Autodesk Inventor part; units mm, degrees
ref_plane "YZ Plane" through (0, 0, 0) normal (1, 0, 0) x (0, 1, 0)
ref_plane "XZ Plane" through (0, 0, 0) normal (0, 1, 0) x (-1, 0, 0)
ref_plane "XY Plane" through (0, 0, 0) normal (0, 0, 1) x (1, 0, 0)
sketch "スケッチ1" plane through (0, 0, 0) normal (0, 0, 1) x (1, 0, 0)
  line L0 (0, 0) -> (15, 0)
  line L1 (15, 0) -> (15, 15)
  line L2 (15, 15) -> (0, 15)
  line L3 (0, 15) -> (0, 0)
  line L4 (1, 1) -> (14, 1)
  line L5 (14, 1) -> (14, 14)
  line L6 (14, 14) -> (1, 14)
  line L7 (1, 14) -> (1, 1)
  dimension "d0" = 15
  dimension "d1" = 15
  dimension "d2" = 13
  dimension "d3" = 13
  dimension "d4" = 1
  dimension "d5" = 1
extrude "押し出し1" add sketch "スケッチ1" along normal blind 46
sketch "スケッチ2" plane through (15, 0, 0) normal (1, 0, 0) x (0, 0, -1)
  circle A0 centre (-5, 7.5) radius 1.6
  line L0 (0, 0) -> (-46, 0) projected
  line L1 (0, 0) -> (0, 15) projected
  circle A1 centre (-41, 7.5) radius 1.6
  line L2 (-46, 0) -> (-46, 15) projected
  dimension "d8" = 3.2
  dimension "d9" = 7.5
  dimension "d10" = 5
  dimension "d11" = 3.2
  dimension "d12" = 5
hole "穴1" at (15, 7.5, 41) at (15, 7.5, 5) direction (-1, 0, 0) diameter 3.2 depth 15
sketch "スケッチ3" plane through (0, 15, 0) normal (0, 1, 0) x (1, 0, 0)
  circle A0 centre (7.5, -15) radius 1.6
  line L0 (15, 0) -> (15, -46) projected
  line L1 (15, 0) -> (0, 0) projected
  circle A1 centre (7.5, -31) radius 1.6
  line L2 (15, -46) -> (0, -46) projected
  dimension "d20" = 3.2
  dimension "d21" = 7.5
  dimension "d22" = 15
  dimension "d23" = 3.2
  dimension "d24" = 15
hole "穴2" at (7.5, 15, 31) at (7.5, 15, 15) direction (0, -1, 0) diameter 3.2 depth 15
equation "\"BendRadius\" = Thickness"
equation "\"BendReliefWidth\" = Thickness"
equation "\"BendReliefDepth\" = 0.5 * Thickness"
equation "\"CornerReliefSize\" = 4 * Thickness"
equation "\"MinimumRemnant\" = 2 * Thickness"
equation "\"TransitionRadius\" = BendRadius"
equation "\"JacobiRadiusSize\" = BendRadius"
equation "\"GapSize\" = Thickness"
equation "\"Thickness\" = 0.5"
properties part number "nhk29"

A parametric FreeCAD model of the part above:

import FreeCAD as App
import Part
import Sketcher

V = App.Vector

doc = App.newDocument("Part")
body = doc.addObject("PartDesign::Body", "Body")

# Sketch on XY plane
sketch1 = doc.addObject("Sketcher::SketchObject", "Sketch")
body.addObject(sketch1)
sketch1.AttachmentSupport = (doc.XY_Plane, [""])
sketch1.MapMode = "FlatFace"
sketch1.addGeometry(Part.LineSegment(V(0, 15, 0), V(0, 0, 0)), False)
sketch1.addGeometry(Part.LineSegment(V(0, 0, 0), V(15, 0, 0)), False)
sketch1.addGeometry(Part.LineSegment(V(15, 0, 0), V(15, 15, 0)), False)
sketch1.addGeometry(Part.LineSegment(V(15, 15, 0), V(0, 15, 0)), False)
sketch1.addGeometry(Part.LineSegment(V(14, 1, 0), V(1, 1, 0)), False)
sketch1.addGeometry(Part.LineSegment(V(1, 1, 0), V(1, 14, 0)), False)
sketch1.addGeometry(Part.LineSegment(V(1, 14, 0), V(14, 14, 0)), False)
sketch1.addGeometry(Part.LineSegment(V(14, 14, 0), V(14, 1, 0)), False)
sketch1.addConstraint(Sketcher.Constraint("Coincident", 0, 2, 1, 1))
sketch1.addConstraint(Sketcher.Constraint("Coincident", 1, 2, 2, 1))
sketch1.addConstraint(Sketcher.Constraint("Coincident", 2, 2, 3, 1))
sketch1.addConstraint(Sketcher.Constraint("Coincident", 3, 2, 0, 1))
sketch1.addConstraint(Sketcher.Constraint("Coincident", 4, 2, 5, 1))
sketch1.addConstraint(Sketcher.Constraint("Coincident", 5, 2, 6, 1))
sketch1.addConstraint(Sketcher.Constraint("Coincident", 6, 2, 7, 1))
sketch1.addConstraint(Sketcher.Constraint("Coincident", 7, 2, 4, 1))
sketch1.addConstraint(Sketcher.Constraint("Vertical", 0))
sketch1.addConstraint(Sketcher.Constraint("Horizontal", 1))
sketch1.addConstraint(Sketcher.Constraint("Vertical", 2))
sketch1.addConstraint(Sketcher.Constraint("Horizontal", 3))
sketch1.addConstraint(Sketcher.Constraint("Horizontal", 4))
sketch1.addConstraint(Sketcher.Constraint("Vertical", 5))
sketch1.addConstraint(Sketcher.Constraint("Horizontal", 6))
sketch1.addConstraint(Sketcher.Constraint("Vertical", 7))
sketch1.addConstraint(Sketcher.Constraint("Coincident", 0, 2, -1, 1))
sketch1.addConstraint(Sketcher.Constraint("Equal", 3, 0))
sketch1.addConstraint(Sketcher.Constraint("Equal", 6, 5))
sketch1.addConstraint(Sketcher.Constraint("DistanceX", 1, 1, 1, 2, 15.0))
sketch1.addConstraint(Sketcher.Constraint("DistanceX", 4, 2, 4, 1, 13.0))
sketch1.addConstraint(Sketcher.Constraint("DistanceX", -1, 1, 4, 2, 1.0))
sketch1.addConstraint(Sketcher.Constraint("DistanceY", -1, 1, 4, 2, 1.0))
pad1 = doc.addObject("PartDesign::Pad", "Pad")
body.addObject(pad1)
pad1.Profile = sketch1
pad1.Length = 46

# Sketch on YZ plane
sketch2 = doc.addObject("Sketcher::SketchObject", "Sketch001")
body.addObject(sketch2)
sketch2.AttachmentSupport = (doc.YZ_Plane, [""])
sketch2.MapMode = "FlatFace"
sketch2.AttachmentOffset = App.Placement(V(0, 0, 15), App.Rotation())
sketch2.addGeometry(Part.Circle(V(7.5, 41, 0), V(0, 0, 1), 1.6), False)
sketch2.addGeometry(Part.Circle(V(7.5, 5, 0), V(0, 0, 1), 1.6), False)
sketch2.addConstraint(Sketcher.Constraint("Equal", 0, 1))
sketch2.addConstraint(Sketcher.Constraint("Vertical", 0, 3, 1, 3))
sketch2.addConstraint(Sketcher.Constraint("Diameter", 0, 3.2))
sketch2.addConstraint(Sketcher.Constraint("DistanceY", -1, 1, 0, 3, 41.0))
sketch2.addConstraint(Sketcher.Constraint("DistanceY", -1, 1, 1, 3, 5.0))
sketch2.addConstraint(Sketcher.Constraint("DistanceX", -1, 1, 0, 3, 7.5))
doc.recompute()
hole = doc.addObject("PartDesign::Hole", "Hole")
body.addObject(hole)
hole.Profile = sketch2
hole.ThreadType = "None"
hole.Diameter = 3.2
hole.DepthType = "Dimension"
hole.Depth = 15
hole.DrillPoint = "Flat"

# Sketch on XZ plane
sketch3 = doc.addObject("Sketcher::SketchObject", "Sketch002")
body.addObject(sketch3)
sketch3.AttachmentSupport = (doc.XZ_Plane, [""])
sketch3.MapMode = "FlatFace"
sketch3.AttachmentOffset = App.Placement(V(0, 0, -15), App.Rotation())
sketch3.addGeometry(Part.Circle(V(7.5, 31, 0), V(0, 0, 1), 1.6), False)
sketch3.addGeometry(Part.Circle(V(7.5, 15, 0), V(0, 0, 1), 1.6), False)
sketch3.addConstraint(Sketcher.Constraint("Equal", 0, 1))
sketch3.addConstraint(Sketcher.Constraint("Vertical", 0, 3, 1, 3))
sketch3.addConstraint(Sketcher.Constraint("Diameter", 0, 3.2))
sketch3.addConstraint(Sketcher.Constraint("DistanceY", -1, 1, 0, 3, 31.0))
sketch3.addConstraint(Sketcher.Constraint("DistanceY", -1, 1, 1, 3, 15.0))
sketch3.addConstraint(Sketcher.Constraint("DistanceX", -1, 1, 0, 3, 7.5))
doc.recompute()
hole2 = doc.addObject("PartDesign::Hole", "Hole001")
body.addObject(hole2)
hole2.Profile = sketch3
hole2.ThreadType = "None"
hole2.Diameter = 3.2
hole2.DepthType = "Dimension"
hole2.Depth = 15
hole2.DrillPoint = "Flat"
hole2.Reversed = True

doc.recompute()
